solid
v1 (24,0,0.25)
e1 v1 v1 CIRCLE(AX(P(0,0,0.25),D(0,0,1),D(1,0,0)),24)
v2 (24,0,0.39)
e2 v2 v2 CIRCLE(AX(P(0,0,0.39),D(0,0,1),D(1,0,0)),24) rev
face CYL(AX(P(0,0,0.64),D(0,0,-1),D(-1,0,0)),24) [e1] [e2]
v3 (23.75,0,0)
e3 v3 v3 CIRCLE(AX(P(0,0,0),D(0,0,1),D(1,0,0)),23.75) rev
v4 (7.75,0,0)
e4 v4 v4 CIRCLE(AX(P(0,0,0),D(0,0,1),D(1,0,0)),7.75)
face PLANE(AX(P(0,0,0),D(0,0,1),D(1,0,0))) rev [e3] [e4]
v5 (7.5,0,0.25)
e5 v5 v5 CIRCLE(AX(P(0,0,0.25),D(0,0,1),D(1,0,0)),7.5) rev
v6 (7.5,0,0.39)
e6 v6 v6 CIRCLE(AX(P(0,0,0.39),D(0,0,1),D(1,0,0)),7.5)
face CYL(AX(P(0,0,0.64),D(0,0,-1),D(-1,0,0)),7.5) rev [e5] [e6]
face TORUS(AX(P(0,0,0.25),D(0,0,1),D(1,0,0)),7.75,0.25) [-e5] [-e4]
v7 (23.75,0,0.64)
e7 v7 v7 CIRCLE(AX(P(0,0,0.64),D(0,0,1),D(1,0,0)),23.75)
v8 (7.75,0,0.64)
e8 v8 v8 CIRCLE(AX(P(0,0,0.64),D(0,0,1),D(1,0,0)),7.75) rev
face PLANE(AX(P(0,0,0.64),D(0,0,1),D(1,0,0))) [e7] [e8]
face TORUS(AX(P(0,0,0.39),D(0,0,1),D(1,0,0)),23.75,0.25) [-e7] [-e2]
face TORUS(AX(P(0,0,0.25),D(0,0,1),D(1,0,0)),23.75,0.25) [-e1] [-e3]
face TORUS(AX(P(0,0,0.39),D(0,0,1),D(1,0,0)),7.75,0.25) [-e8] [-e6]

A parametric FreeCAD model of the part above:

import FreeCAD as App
import Part
import Sketcher


def edges_at(feature, points):
    """Names of the edges that pass closest to the given points."""
    edges = feature.Shape.Edges
    near = lambda p: min(range(len(edges)), key=lambda i: edges[i].distToShape(Part.Vertex(*p))[0])
    return sorted({f"Edge{near(p) + 1}" for p in points})

doc = App.newDocument("Part")
body = doc.addObject("PartDesign::Body", "Body")

# Sketch on XY plane
sketch1 = body.newObject("Sketcher::SketchObject", "Sketch")
sketch1.AttachmentSupport = (doc.getObject("XY_Plane"), [""])
sketch1.MapMode = "FlatFace"
sketch1.addGeometry([
    Part.Circle(App.Vector(0, 0, 0), App.Vector(0, 0, 1), 24),
    Part.Circle(App.Vector(0, 0, 0), App.Vector(0, 0, 1), 7.5),
], False)
sketch1.addConstraint([
    Sketcher.Constraint("Coincident", 0, 3, -1, 1),
    Sketcher.Constraint("Coincident", 1, 3, -1, 1),
    Sketcher.Constraint("Diameter", 0, 48.0),
    Sketcher.Constraint("Diameter", 1, 15.0),
])
pad1 = body.newObject("PartDesign::Pad", "Pad")
pad1.Profile = sketch1
pad1.Length = 0.64
doc.recompute()

fillet = body.newObject("PartDesign::Fillet", "Fillet")
fillet.Base = (pad1, edges_at(pad1, [
    (-24, 0, 0),
    (-24, 0, 0.64),
    (-7.5, 0, 0),
    (-7.5, 0, 0.64),
]))
fillet.Radius = 0.25

doc.recompute()
